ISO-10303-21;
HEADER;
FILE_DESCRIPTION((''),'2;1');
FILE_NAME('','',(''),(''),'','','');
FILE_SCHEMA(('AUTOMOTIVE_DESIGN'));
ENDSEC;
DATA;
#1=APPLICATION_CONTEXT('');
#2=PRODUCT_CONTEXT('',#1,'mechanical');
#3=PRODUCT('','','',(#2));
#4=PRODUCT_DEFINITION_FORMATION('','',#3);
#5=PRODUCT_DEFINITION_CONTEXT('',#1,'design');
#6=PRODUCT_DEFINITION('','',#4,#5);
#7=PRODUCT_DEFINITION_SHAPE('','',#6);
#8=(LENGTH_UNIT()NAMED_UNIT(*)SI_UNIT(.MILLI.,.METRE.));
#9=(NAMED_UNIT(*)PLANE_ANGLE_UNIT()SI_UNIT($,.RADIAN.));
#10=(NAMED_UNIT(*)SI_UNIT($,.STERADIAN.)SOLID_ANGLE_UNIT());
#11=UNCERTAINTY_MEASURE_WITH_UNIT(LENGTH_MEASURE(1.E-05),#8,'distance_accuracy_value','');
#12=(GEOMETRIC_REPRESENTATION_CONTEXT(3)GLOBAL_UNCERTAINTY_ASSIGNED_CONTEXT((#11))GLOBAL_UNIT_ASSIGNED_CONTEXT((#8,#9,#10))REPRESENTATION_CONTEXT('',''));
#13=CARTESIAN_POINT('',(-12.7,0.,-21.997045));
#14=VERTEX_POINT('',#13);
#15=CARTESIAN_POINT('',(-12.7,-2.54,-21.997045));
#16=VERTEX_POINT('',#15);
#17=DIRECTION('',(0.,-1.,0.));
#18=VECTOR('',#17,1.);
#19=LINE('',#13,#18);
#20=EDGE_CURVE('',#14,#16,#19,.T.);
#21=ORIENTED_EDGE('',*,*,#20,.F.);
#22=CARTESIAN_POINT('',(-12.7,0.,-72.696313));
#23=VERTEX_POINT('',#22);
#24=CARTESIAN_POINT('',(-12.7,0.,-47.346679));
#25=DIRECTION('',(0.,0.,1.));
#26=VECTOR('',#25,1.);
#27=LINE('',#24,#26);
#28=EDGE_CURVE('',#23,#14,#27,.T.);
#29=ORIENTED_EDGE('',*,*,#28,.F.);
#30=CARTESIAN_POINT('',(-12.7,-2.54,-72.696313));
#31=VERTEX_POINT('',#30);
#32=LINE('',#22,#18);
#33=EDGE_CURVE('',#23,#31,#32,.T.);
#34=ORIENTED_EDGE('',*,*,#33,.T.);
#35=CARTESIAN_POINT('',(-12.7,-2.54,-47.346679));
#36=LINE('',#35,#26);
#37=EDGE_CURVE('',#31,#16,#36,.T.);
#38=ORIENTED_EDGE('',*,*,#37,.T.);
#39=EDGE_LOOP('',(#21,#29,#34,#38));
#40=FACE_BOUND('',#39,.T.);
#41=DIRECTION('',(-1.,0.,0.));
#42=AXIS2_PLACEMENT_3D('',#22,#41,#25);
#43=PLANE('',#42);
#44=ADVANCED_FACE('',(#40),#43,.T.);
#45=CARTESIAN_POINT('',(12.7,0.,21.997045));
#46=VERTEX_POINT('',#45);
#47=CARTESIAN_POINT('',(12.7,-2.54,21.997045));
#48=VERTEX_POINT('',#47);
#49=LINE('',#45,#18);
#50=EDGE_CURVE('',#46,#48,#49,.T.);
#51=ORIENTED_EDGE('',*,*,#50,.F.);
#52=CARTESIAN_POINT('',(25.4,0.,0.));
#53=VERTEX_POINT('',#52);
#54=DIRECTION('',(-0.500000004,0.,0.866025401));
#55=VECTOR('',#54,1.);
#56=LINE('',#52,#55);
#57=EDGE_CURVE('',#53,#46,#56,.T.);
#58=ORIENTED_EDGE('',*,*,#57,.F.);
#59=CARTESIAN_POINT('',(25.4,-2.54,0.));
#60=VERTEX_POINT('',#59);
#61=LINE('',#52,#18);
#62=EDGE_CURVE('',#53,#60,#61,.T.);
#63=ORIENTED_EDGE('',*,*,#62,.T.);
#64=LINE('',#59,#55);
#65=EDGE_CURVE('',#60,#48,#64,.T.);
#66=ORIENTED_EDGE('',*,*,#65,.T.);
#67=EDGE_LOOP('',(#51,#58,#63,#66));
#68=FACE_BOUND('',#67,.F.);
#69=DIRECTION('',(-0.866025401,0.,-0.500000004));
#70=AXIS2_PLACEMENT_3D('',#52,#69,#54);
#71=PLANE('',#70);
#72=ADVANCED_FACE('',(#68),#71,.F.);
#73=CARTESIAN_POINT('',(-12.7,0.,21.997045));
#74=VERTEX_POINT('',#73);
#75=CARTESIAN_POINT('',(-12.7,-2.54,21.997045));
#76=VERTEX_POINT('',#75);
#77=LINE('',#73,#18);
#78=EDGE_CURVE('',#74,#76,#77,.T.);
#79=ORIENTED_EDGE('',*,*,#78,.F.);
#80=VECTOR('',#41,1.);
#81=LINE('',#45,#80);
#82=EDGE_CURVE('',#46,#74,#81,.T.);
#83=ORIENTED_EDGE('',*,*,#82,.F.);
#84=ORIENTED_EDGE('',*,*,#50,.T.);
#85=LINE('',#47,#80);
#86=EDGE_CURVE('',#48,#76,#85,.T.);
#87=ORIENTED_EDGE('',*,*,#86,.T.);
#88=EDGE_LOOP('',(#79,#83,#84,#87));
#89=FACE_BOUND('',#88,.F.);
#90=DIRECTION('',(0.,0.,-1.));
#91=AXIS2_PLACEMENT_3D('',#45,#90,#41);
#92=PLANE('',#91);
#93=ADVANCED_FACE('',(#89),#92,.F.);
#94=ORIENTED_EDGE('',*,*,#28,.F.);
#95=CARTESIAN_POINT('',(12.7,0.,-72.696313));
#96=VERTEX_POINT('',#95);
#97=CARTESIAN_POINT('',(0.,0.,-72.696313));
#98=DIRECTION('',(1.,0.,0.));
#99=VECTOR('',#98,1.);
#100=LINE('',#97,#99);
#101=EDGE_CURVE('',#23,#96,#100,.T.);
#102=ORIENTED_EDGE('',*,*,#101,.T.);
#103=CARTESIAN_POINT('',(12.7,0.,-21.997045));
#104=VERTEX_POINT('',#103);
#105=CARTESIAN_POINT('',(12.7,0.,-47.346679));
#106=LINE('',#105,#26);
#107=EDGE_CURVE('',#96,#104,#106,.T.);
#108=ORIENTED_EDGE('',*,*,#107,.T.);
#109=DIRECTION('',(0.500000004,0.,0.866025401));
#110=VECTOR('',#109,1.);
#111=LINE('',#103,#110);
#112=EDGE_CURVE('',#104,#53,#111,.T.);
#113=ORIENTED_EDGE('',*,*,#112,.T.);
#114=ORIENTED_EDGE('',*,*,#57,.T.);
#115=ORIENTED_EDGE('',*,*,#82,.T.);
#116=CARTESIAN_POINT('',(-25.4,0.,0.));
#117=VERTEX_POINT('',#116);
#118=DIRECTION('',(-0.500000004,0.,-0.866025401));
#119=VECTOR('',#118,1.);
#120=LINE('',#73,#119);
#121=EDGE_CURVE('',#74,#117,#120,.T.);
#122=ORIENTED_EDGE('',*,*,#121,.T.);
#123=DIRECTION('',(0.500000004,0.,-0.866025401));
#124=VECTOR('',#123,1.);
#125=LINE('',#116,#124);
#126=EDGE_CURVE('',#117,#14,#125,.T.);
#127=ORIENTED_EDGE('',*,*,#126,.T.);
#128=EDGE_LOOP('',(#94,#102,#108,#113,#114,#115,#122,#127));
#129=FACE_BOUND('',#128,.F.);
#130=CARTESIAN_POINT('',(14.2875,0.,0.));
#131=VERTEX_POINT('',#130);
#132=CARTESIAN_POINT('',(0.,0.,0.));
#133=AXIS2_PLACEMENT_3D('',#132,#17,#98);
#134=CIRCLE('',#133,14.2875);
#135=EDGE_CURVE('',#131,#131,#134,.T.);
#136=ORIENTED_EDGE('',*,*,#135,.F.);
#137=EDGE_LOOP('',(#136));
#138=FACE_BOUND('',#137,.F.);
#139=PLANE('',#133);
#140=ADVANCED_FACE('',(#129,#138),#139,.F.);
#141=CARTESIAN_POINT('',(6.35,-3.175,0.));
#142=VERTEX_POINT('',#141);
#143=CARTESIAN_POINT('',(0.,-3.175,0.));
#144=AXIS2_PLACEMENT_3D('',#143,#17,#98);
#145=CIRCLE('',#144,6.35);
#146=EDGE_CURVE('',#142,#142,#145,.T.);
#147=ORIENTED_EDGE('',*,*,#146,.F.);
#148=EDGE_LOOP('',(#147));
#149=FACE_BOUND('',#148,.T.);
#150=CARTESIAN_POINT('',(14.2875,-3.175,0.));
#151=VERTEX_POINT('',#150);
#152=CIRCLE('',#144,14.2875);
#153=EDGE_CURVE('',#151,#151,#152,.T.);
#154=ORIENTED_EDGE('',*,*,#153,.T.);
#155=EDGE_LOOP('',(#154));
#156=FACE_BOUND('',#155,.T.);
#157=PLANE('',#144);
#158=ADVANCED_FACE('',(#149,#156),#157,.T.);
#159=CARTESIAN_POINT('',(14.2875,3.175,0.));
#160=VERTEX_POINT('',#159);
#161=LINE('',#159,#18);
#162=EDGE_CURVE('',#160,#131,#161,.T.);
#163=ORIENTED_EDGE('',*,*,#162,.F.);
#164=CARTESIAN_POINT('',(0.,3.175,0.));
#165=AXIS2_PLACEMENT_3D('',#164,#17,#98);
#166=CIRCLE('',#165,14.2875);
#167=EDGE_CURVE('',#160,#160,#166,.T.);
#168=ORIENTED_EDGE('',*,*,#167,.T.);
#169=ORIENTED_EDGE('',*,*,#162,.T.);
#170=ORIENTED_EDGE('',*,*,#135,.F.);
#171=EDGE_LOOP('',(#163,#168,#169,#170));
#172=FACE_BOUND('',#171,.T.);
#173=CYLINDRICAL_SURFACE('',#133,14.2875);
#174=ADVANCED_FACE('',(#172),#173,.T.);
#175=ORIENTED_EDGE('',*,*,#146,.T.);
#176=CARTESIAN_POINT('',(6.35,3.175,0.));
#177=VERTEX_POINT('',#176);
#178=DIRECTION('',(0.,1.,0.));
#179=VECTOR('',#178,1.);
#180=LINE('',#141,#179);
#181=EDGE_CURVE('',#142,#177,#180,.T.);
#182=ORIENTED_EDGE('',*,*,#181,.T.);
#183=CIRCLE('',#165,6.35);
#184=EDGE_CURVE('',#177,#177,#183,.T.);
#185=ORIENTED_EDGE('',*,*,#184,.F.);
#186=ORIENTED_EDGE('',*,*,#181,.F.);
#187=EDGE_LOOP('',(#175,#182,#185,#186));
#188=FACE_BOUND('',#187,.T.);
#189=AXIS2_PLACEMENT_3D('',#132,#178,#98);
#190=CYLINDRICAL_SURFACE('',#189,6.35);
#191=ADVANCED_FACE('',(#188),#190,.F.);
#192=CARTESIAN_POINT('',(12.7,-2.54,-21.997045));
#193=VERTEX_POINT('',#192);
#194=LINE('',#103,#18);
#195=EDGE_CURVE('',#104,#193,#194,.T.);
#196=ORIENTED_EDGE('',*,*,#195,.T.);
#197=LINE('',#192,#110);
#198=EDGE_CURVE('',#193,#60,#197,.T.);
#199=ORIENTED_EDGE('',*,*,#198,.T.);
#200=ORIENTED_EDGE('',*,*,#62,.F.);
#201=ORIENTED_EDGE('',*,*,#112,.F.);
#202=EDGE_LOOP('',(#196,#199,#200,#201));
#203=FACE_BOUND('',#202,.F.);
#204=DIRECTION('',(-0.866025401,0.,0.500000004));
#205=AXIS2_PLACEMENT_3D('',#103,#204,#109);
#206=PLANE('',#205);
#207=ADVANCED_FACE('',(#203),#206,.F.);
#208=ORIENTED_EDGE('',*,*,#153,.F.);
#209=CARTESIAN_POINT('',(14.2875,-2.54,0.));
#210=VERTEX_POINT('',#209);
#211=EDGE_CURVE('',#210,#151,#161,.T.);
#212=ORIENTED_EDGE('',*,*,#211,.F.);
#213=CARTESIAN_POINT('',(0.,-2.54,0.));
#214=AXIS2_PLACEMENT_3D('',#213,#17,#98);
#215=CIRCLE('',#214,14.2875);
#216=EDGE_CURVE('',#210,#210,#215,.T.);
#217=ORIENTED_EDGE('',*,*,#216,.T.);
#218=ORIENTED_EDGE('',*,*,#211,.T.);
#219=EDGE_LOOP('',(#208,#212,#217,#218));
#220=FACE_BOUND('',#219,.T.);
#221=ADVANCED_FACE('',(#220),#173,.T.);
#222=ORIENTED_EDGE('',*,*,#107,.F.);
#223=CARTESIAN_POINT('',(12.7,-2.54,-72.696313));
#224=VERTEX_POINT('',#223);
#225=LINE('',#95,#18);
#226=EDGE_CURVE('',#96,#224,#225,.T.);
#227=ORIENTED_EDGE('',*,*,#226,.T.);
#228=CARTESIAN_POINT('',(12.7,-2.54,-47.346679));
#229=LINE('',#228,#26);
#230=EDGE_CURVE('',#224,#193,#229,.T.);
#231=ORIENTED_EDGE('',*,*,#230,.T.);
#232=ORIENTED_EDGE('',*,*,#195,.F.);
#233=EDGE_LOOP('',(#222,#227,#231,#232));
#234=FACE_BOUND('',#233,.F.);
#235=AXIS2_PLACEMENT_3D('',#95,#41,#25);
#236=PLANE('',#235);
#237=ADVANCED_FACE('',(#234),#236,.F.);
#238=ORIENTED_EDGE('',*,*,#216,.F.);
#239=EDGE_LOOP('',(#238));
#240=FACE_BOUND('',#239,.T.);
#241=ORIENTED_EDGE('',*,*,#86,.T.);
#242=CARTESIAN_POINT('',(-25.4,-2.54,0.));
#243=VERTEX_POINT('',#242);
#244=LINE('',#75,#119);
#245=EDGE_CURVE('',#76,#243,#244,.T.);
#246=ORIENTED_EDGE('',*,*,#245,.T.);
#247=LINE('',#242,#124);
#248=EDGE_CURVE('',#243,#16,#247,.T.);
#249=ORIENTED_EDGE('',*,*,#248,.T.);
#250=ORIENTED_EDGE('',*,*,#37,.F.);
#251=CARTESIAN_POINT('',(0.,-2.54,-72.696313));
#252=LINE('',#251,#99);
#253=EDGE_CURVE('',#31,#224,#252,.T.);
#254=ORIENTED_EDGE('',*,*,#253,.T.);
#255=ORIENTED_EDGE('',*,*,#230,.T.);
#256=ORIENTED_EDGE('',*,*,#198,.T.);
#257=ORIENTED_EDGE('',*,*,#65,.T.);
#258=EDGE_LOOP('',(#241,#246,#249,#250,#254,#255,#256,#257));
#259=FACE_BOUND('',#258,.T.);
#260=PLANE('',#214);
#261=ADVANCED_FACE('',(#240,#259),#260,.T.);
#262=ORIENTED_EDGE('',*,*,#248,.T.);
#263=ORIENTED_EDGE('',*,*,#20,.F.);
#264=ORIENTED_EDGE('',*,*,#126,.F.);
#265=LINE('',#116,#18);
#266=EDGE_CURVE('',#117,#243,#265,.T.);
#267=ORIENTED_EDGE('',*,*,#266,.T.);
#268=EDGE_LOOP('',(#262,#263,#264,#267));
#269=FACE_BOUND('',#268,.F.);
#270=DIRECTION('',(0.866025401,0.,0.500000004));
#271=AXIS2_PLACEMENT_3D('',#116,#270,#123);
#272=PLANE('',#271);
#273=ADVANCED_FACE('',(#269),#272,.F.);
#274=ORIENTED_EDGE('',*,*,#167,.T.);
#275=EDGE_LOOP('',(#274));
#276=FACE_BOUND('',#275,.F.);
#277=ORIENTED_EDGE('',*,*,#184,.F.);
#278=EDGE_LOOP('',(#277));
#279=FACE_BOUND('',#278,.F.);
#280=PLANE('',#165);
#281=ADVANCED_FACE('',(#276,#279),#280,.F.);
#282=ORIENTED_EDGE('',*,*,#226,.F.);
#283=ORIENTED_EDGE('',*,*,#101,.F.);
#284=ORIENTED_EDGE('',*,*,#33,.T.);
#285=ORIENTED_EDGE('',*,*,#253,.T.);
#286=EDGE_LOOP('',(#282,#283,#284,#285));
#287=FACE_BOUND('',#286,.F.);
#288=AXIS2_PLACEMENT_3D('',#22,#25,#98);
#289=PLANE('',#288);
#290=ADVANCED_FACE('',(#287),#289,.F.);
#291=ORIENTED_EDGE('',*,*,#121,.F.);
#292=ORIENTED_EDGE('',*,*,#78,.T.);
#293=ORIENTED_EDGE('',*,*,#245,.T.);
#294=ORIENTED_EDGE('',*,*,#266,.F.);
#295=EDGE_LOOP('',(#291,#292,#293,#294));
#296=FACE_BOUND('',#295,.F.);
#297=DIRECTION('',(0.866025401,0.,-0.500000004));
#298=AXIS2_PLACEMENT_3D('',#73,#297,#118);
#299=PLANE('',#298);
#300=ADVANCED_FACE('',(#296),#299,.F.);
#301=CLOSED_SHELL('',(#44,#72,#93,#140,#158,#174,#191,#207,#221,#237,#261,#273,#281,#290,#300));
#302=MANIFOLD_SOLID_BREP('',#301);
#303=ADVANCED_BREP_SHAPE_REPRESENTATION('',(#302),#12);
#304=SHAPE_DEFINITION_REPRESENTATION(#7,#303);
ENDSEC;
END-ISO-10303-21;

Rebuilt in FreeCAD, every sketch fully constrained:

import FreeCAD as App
import Part
import Sketcher

V = App.Vector
Q = App.Units.Quantity


def add_polygon(sketch, points):
    """Adds a closed chain of lines whose ends are joined by coincident constraints."""
    first, n = sketch.GeometryCount, len(points)
    for a, b in zip(points, points[1:] + points[:1]):
        sketch.addGeometry(Part.LineSegment(App.Vector(*a, 0), App.Vector(*b, 0)), False)
    for i in range(n):
        sketch.addConstraint(Sketcher.Constraint("Coincident", first + i, 2, first + (i + 1) % n, 1))

doc = App.newDocument("Part")
body = doc.addObject("PartDesign::Body", "Body")

sketch1 = doc.addObject("Sketcher::SketchObject", "Sketch")
body.addObject(sketch1)
sketch1.AttachmentSupport = (doc.XZ_Plane, [""])
sketch1.MapMode = "FlatFace"
add_polygon(sketch1, [(13, 22), (-13, 22), (-25, 0), (-13, -22), (-13, -73), (13, -73), (13, -22), (25, 0)])
sketch1.addGeometry(Part.Circle(V(0, 0, 0), V(0, 0, 1), 14), False)
sketch1.addConstraint(Sketcher.Constraint("Horizontal", 0))
sketch1.addConstraint(Sketcher.Constraint("Vertical", 3))
sketch1.addConstraint(Sketcher.Constraint("Horizontal", 4))
sketch1.addConstraint(Sketcher.Constraint("Vertical", 5))
sketch1.addConstraint(Sketcher.Constraint("Coincident", 8, 3, -1, 1))
sketch1.addConstraint(Sketcher.Constraint("Symmetric", 0, 2, 5, 2, -1, 1))
sketch1.addConstraint(Sketcher.Constraint("Symmetric", 1, 2, 6, 2, -1, 1))
sketch1.addConstraint(Sketcher.Constraint("Symmetric", 2, 2, 7, 2, -1, 1))
sketch1.addConstraint(Sketcher.Constraint("PointOnObject", 1, 2, -1))
sketch1.addConstraint(Sketcher.Constraint("Vertical", 0, 2, 2, 2))
sketch1.addConstraint(Sketcher.Constraint("DistanceX", 0, 2, 0, 1, Q("1 in")))
sketch1.addConstraint(Sketcher.Constraint("Distance", 1, Q("1 in")))
sketch1.addConstraint(Sketcher.Constraint("Diameter", 8, Q("1.125 in")))
sketch1.addConstraint(Sketcher.Constraint("DistanceX", 1, 2, -1, 1, Q("1 in")))
sketch1.addConstraint(Sketcher.Constraint("DistanceY", 3, 2, 3, 1, Q("50.699268 mm")))
pad1 = doc.addObject("PartDesign::Pad", "Pad")
body.addObject(pad1)
pad1.Profile = sketch1
pad1.Length = Q("0.1 in")

sketch2 = doc.addObject("Sketcher::SketchObject", "Sketch001")
body.addObject(sketch2)
sketch2.AttachmentSupport = (doc.XZ_Plane, [""])
sketch2.MapMode = "FlatFace"
sketch2.addGeometry(Part.Circle(V(0, 0, 0), V(0, 0, 1), 14), False)
sketch2.addGeometry(Part.Circle(V(0, 0, 0), V(0, 0, 1), 6), False)
sketch2.addConstraint(Sketcher.Constraint("Coincident", 0, 3, -1, 1))
sketch2.addConstraint(Sketcher.Constraint("Coincident", 1, 3, -1, 1))
sketch2.addConstraint(Sketcher.Constraint("Diameter", 1, Q("0.5 in")))
sketch2.addConstraint(Sketcher.Constraint("Diameter", 0, Q("1.125 in")))
pad2 = doc.addObject("PartDesign::Pad", "Pad001")
body.addObject(pad2)
pad2.Profile = sketch2
pad2.Length = Q("0.25 in")
pad2.Midplane = True

doc.recompute()
